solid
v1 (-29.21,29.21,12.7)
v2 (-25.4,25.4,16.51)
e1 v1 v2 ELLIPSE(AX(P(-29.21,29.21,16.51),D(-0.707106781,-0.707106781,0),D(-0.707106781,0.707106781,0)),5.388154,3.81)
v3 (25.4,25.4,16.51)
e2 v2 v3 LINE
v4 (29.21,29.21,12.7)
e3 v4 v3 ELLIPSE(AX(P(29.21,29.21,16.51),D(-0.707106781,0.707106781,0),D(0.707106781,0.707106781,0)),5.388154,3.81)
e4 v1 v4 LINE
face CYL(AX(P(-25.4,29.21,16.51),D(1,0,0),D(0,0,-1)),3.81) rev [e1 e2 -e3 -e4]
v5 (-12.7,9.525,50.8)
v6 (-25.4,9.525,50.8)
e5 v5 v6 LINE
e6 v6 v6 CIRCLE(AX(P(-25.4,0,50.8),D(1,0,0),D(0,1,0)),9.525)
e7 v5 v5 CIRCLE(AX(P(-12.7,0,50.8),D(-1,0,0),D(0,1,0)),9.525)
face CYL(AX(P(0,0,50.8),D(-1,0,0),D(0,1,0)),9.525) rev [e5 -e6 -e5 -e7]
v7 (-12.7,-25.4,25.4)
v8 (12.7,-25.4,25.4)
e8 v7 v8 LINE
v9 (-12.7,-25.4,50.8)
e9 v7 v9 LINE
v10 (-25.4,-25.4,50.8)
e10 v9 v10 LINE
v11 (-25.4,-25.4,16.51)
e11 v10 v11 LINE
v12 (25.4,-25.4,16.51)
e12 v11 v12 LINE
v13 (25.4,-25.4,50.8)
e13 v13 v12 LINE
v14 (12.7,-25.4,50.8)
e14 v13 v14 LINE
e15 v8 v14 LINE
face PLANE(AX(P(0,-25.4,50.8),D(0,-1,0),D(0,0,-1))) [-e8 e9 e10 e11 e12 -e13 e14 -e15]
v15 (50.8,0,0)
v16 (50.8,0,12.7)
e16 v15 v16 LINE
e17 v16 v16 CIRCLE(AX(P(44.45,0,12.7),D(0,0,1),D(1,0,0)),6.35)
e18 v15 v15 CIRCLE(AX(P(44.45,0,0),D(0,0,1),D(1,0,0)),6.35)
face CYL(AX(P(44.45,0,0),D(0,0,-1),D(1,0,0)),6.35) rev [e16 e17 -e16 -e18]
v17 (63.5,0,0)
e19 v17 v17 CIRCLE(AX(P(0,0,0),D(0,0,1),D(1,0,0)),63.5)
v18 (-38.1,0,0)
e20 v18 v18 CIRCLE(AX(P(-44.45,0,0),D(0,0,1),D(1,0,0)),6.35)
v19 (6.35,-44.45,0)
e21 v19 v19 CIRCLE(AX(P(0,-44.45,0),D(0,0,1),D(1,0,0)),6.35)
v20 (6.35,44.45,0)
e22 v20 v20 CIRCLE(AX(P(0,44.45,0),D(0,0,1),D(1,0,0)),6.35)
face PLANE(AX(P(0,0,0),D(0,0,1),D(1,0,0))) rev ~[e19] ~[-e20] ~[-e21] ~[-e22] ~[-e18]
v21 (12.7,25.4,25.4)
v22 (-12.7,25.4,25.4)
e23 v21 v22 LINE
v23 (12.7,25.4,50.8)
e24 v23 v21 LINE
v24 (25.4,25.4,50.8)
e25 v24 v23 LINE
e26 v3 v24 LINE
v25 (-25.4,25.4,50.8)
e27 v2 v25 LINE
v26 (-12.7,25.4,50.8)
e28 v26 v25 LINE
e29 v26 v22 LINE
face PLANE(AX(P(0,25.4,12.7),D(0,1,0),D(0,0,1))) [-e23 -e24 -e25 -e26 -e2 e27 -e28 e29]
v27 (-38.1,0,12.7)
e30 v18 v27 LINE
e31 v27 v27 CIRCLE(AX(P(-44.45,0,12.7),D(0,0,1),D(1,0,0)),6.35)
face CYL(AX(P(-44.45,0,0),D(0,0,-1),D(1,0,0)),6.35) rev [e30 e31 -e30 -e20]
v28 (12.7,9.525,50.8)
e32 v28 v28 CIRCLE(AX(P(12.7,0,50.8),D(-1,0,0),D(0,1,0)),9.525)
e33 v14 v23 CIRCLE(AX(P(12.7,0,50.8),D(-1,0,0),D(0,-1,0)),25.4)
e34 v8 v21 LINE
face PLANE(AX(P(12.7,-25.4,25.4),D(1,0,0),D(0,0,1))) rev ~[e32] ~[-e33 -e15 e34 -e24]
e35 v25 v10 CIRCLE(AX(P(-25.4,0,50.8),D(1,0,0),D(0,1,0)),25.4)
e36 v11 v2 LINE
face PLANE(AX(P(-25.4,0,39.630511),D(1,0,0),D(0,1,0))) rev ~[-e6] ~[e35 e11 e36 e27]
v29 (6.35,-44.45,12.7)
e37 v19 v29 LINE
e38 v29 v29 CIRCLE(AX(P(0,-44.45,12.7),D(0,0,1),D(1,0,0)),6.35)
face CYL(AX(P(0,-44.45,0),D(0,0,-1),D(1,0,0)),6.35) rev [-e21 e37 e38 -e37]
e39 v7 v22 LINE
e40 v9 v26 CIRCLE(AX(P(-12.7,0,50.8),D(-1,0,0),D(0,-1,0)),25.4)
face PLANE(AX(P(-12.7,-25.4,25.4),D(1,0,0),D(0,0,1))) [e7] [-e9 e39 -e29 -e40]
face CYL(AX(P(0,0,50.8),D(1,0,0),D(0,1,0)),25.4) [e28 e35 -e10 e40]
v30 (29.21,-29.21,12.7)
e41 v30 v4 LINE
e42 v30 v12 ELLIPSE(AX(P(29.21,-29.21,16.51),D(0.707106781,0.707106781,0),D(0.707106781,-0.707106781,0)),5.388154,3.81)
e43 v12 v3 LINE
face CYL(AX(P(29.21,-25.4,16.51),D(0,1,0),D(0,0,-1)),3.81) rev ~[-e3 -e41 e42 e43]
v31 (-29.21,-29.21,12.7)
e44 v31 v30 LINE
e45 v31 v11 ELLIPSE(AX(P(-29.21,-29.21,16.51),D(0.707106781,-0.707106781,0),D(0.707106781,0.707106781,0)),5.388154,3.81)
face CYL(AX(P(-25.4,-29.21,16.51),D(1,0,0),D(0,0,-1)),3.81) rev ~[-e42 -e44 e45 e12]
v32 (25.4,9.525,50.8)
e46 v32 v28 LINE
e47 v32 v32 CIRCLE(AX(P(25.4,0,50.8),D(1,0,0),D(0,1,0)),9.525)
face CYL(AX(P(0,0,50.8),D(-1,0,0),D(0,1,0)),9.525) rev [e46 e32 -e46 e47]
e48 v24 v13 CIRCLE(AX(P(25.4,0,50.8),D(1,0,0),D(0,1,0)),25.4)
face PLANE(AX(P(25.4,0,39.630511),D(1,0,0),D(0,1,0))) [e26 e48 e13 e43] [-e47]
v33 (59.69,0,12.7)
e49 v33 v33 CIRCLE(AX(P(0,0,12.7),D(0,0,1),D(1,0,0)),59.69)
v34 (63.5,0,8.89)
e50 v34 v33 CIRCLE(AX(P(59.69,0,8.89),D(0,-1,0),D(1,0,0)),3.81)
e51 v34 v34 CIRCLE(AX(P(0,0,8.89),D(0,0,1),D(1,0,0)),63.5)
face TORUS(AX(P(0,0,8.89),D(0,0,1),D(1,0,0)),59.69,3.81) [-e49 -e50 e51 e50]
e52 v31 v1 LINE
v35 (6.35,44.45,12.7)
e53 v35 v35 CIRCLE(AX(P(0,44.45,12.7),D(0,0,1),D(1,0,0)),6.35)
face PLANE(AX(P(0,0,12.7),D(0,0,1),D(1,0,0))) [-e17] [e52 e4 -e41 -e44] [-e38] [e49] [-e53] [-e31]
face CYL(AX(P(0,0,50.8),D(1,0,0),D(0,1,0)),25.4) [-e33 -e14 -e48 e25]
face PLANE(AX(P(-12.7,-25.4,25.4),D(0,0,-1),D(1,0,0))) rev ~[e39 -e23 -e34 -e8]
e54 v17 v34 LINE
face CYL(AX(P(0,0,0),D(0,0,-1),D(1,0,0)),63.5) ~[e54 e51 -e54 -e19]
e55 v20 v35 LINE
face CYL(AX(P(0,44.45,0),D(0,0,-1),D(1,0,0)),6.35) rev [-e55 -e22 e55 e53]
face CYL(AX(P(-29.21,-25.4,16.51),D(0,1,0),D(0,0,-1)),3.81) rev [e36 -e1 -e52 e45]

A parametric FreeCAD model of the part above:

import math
import FreeCAD as App
import Part
import Sketcher
from FreeCAD import Vector
Q = App.Units.Quantity


def edges_at(feature, points):
    """Names of the edges that pass closest to the given points."""
    edges = feature.Shape.Edges
    near = lambda p: min(range(len(edges)), key=lambda i: edges[i].distToShape(Part.Vertex(*p))[0])
    return sorted({f"Edge{near(p) + 1}" for p in points})


def add_polygon(sketch, points):
    """Adds a closed chain of lines whose ends are joined by coincident constraints."""
    first, n = sketch.GeometryCount, len(points)
    for a, b in zip(points, points[1:] + points[:1]):
        sketch.addGeometry(Part.LineSegment(App.Vector(*a, 0), App.Vector(*b, 0)), False)
    for i in range(n):
        sketch.addConstraint(Sketcher.Constraint("Coincident", first + i, 2, first + (i + 1) % n, 1))

doc = App.newDocument("Part")
params = doc.addObject("Spreadsheet::Sheet", "Params")
for row, (alias, value) in enumerate([
    ("sketch1_diameter", "5 in"),
    ("sketch1_diameter2", "0.5 in"),
    ("pad1_length", "0.5 in"),
    ("sketch2_radius", "1 in"),
    ("sketch2_diameter", "0.75 in"),
    ("sketch2_height", "1.5 in"),
    ("pad2_length", "2 in"),
    ("sketch3_width", "1 in"),
    ("sketch3_height", "2 in"),
    ("fillet_radius", "0.15 in"),
], start=1):
    params.set(f"A{row}", alias)
    params.set(f"B{row}", "=" + value)
    params.setAlias(f"B{row}", alias)

body = doc.addObject("PartDesign::Body", "Body")

sketch1 = body.newObject("Sketcher::SketchObject", "Sketch")
sketch1.AttachmentSupport = (doc.getObject("XY_Plane"), [""])
sketch1.MapMode = "FlatFace"
sketch1.addGeometry([
    Part.Circle(Vector(0, 0, 0), Vector(0, 0, 1), 64),
    Part.Circle(Vector(0, -44, 0), Vector(0, 0, 1), 6),
    Part.Circle(Vector(-44, 0, 0), Vector(0, 0, 1), 6),
    Part.Circle(Vector(44, 0, 0), Vector(0, 0, 1), 6),
    Part.Circle(Vector(0, 44, 0), Vector(0, 0, 1), 6),
], False)
sketch1.addConstraint([
    Sketcher.Constraint("Coincident", 0, 3, -1, 1),
    Sketcher.Constraint("Equal", 1, 2),
    Sketcher.Constraint("Equal", 2, 3),
    Sketcher.Constraint("Equal", 3, 4),
    Sketcher.Constraint("Symmetric", 2, 3, 3, 3, -1, 1),
    Sketcher.Constraint("Symmetric", 1, 3, 4, 3, -1, 1),
    Sketcher.Constraint("PointOnObject", 1, 3, -2),
    Sketcher.Constraint("PointOnObject", 2, 3, -1),
    Sketcher.Constraint("Diameter", 0, Q("5 in")),
    Sketcher.Constraint("Diameter", 1, Q("0.5 in")),
    Sketcher.Constraint("DistanceX", 2, 3, 3, 3, Q("3.5 in")),
    Sketcher.Constraint("DistanceY", 1, 3, 4, 3, Q("3.5 in")),
])
sketch1.setExpression("Constraints[8]", "Params.sketch1_diameter")
sketch1.setExpression("Constraints[9]", "Params.sketch1_diameter2")
pad1 = body.newObject("PartDesign::Pad", "Pad")
pad1.Profile = sketch1
pad1.setExpression("Length", "Params.pad1_length")

sketch2 = body.newObject("Sketcher::SketchObject", "Sketch001")
sketch2.AttachmentSupport = (doc.getObject("YZ_Plane"), [""])
sketch2.MapMode = "FlatFace"
sketch2.addGeometry([
    Part.LineSegment(Vector(-25, 51, 0), Vector(-25, 13, 0)),
    Part.LineSegment(Vector(-25, 13, 0), Vector(25, 13, 0)),
    Part.LineSegment(Vector(25, 13, 0), Vector(25, 51, 0)),
    Part.ArcOfCircle(Part.Circle(Vector(0, 51, 0), Vector(0, 0, 1), 25), math.radians(0), math.radians(180)),
    Part.Circle(Vector(0, 51, 0), Vector(0, 0, 1), 10),
], False)
sketch2.addConstraint([
    Sketcher.Constraint("Coincident", 0, 2, 1, 1),
    Sketcher.Constraint("Coincident", 1, 2, 2, 1),
    Sketcher.Constraint("Tangent", 2, 2, 3, 1),
    Sketcher.Constraint("Tangent", 3, 2, 0, 1),
    Sketcher.Constraint("Vertical", 0),
    Sketcher.Constraint("Horizontal", 1),
    Sketcher.Constraint("Vertical", 2),
    Sketcher.Constraint("Coincident", 4, 3, 3, 3),
    Sketcher.Constraint("PointOnObject", 3, 3, -2),
    Sketcher.Constraint("Radius", 3, Q("1 in")),
    Sketcher.Constraint("Diameter", 4, Q("0.75 in")),
    Sketcher.Constraint("DistanceY", 0, 2, 0, 1, Q("1.5 in")),
    Sketcher.Constraint("DistanceY", -1, 1, 3, 3, Q("2 in")),
])
sketch2.setExpression("Constraints[9]", "Params.sketch2_radius")
sketch2.setExpression("Constraints[10]", "Params.sketch2_diameter")
sketch2.setExpression("Constraints[11]", "Params.sketch2_height")
pad2 = body.newObject("PartDesign::Pad", "Pad001")
pad2.Profile = sketch2
pad2.setExpression("Length", "Params.pad2_length")
pad2.Midplane = True

sketch3 = body.newObject("Sketcher::SketchObject", "Sketch002")
sketch3.AttachmentSupport = (doc.getObject("XZ_Plane"), [""])
sketch3.MapMode = "FlatFace"
sketch3.AttachmentOffset = App.Placement(Vector(0, 0, 1 * 25.4), App.Rotation())
add_polygon(sketch3, [(-13, 76), (-13, 25), (13, 25), (13, 76)])
sketch3.addConstraint([
    Sketcher.Constraint("Vertical", 0),
    Sketcher.Constraint("Horizontal", 1),
    Sketcher.Constraint("Vertical", 2),
    Sketcher.Constraint("Horizontal", 3),
    Sketcher.Constraint("DistanceX", 1, 1, 1, 2, Q("1 in")),
    Sketcher.Constraint("DistanceY", 0, 2, 0, 1, Q("2 in")),
    Sketcher.Constraint("DistanceY", -1, 1, 0, 2, Q("1 in")),
    Sketcher.Constraint("DistanceX", 0, 2, -1, 1, Q("0.5 in")),
])
sketch3.setExpression("Constraints[8]", "Params.sketch3_width")
sketch3.setExpression("Constraints[9]", "Params.sketch3_height")
pocket1 = body.newObject("PartDesign::Pocket", "Pocket")
pocket1.Profile = sketch3
pocket1.Type = "ThroughAll"
doc.recompute()

fillet = body.newObject("PartDesign::Fillet", "Fillet")
fillet.Base = (pocket1, edges_at(pocket1, [
    (0, -25.4, 12.7),
    (-25.4, 0, 12.7),
    (0, 25.4, 12.7),
    (25.4, 0, 12.7),
    (-63.5, 0, 12.7),
]))
fillet.setExpression("Radius", "Params.fillet_radius")

doc.recompute()
